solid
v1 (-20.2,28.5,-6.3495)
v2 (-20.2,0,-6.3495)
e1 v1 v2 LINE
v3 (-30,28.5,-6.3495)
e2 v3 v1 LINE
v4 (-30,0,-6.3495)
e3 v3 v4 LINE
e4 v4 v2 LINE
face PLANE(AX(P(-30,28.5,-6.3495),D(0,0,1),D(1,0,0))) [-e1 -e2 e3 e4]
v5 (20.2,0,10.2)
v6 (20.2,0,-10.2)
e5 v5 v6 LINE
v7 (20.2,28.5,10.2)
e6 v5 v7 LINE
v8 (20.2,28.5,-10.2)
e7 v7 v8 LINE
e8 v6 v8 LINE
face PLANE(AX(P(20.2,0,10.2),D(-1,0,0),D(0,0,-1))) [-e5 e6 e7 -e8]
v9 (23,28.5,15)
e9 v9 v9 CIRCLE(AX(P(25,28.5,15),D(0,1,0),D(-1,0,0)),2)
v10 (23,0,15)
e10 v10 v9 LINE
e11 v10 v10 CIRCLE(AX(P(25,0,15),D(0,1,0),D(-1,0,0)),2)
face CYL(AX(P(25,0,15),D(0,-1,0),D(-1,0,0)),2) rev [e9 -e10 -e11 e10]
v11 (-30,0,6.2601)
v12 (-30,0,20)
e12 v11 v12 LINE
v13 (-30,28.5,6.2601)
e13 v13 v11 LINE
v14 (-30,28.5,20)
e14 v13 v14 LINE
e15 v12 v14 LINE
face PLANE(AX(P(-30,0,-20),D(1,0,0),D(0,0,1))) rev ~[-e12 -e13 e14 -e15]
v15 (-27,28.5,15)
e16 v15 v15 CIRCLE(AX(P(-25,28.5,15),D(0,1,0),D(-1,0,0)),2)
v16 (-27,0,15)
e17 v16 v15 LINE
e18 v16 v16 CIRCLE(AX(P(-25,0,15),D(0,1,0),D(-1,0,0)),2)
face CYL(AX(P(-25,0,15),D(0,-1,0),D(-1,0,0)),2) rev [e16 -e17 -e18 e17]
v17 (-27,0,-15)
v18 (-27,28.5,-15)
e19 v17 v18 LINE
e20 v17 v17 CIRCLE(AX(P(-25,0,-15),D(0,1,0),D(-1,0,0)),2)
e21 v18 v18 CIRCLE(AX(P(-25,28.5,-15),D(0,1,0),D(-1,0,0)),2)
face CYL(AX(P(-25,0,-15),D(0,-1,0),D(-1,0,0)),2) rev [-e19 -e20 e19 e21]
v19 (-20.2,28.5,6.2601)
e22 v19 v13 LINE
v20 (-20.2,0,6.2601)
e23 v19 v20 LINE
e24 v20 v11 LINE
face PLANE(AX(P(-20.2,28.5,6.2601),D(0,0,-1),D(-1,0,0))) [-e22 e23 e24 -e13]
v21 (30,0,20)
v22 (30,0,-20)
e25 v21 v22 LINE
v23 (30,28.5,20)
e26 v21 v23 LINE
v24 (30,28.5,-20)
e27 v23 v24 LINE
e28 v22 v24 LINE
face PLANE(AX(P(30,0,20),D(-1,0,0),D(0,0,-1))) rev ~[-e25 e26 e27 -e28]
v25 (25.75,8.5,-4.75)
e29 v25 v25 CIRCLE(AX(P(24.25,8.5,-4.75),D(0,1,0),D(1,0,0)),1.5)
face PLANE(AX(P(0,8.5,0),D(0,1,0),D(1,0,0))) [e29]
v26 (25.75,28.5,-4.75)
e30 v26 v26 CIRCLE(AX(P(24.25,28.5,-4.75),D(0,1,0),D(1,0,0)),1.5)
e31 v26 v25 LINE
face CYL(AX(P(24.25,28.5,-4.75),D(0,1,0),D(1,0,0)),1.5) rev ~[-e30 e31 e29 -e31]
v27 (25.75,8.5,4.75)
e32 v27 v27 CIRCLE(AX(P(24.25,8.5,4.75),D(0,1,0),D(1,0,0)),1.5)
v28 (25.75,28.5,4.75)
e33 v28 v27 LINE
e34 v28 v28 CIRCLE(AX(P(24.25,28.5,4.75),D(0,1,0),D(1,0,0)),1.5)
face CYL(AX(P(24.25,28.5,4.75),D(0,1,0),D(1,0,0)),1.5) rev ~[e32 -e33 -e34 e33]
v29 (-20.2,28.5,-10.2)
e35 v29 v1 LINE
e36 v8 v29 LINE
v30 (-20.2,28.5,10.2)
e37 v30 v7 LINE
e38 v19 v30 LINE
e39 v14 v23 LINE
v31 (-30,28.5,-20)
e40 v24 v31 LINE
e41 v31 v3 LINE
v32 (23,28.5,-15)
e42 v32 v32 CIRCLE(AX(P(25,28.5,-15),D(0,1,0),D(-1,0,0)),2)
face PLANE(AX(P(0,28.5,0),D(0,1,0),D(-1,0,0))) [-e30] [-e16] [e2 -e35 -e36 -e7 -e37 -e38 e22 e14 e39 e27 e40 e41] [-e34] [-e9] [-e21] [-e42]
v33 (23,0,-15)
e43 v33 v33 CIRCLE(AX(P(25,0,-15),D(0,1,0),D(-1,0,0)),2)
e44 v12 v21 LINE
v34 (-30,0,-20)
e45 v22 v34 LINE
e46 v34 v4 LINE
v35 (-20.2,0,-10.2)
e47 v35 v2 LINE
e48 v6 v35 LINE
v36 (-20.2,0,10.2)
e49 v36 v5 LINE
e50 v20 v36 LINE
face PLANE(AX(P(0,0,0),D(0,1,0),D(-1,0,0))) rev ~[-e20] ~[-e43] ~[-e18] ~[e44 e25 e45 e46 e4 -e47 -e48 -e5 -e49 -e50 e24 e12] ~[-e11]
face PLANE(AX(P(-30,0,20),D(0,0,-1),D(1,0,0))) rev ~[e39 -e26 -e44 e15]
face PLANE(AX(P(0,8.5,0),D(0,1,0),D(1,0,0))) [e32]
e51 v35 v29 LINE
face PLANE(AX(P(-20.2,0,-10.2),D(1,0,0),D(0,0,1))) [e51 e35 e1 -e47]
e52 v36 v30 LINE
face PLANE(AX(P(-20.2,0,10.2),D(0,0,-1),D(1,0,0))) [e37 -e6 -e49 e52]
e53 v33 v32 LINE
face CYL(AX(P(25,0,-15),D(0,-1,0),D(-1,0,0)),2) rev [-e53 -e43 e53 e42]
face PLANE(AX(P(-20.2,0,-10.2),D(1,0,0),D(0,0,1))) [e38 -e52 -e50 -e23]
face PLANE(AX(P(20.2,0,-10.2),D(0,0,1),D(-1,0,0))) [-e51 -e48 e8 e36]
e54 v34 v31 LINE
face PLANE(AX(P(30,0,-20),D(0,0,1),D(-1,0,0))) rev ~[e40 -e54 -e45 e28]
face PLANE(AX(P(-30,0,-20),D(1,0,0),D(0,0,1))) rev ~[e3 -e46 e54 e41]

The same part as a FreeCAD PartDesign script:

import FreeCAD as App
import Part
import Sketcher
from FreeCAD import Vector

doc = App.newDocument("Part")
body = doc.addObject("PartDesign::Body", "Body")

# Sketch on XZ plane
sketch1 = body.newObject("Sketcher::SketchObject", "Sketch")
sketch1.AttachmentSupport = (doc.getObject("XZ_Plane"), [""])
sketch1.MapMode = "FlatFace"
sketch1.addGeometry(Part.LineSegment(Vector(30, 20, 0), Vector(30, -20, 0)), False)
sketch1.addGeometry(Part.LineSegment(Vector(30, -20, 0), Vector(-30, -20, 0)), False)
sketch1.addGeometry(Part.LineSegment(Vector(-30, -20, 0), Vector(-30, 20, 0)), False)
sketch1.addGeometry(Part.LineSegment(Vector(-30, 20, 0), Vector(30, 20, 0)), False)
sketch1.addGeometry(Part.Circle(Vector(25, -15, 0), Vector(0, 0, 1), 2), False)
sketch1.addGeometry(Part.Circle(Vector(-25, -15, 0), Vector(0, 0, 1), 2), False)
sketch1.addGeometry(Part.Circle(Vector(25, 15, 0), Vector(0, 0, 1), 2), False)
sketch1.addGeometry(Part.LineSegment(Vector(-20.2, -10.2, 0), Vector(20.2, -10.2, 0)), False)
sketch1.addGeometry(Part.LineSegment(Vector(20.2, -10.2, 0), Vector(20.2, 10.2, 0)), False)
sketch1.addGeometry(Part.LineSegment(Vector(20.2, 10.2, 0), Vector(-20.2, 10.2, 0)), False)
sketch1.addGeometry(Part.LineSegment(Vector(-20.2, 10.2, 0), Vector(-20.2, -10.2, 0)), False)
sketch1.addGeometry(Part.Circle(Vector(-25, 15, 0), Vector(0, 0, 1), 2), False)
sketch1.addConstraint(Sketcher.Constraint("Coincident", 0, 2, 1, 1))
sketch1.addConstraint(Sketcher.Constraint("Coincident", 1, 2, 2, 1))
sketch1.addConstraint(Sketcher.Constraint("Coincident", 2, 2, 3, 1))
sketch1.addConstraint(Sketcher.Constraint("Coincident", 3, 2, 0, 1))
sketch1.addConstraint(Sketcher.Constraint("Coincident", 7, 2, 8, 1))
sketch1.addConstraint(Sketcher.Constraint("Coincident", 8, 2, 9, 1))
sketch1.addConstraint(Sketcher.Constraint("Coincident", 9, 2, 10, 1))
sketch1.addConstraint(Sketcher.Constraint("Coincident", 10, 2, 7, 1))
sketch1.addConstraint(Sketcher.Constraint("Vertical", 0))
sketch1.addConstraint(Sketcher.Constraint("Horizontal", 1))
sketch1.addConstraint(Sketcher.Constraint("Vertical", 2))
sketch1.addConstraint(Sketcher.Constraint("Horizontal", 3))
sketch1.addConstraint(Sketcher.Constraint("Horizontal", 7))
sketch1.addConstraint(Sketcher.Constraint("Vertical", 8))
sketch1.addConstraint(Sketcher.Constraint("Horizontal", 9))
sketch1.addConstraint(Sketcher.Constraint("Vertical", 10))
sketch1.addConstraint(Sketcher.Constraint("Equal", 4, 5))
sketch1.addConstraint(Sketcher.Constraint("Equal", 5, 6))
sketch1.addConstraint(Sketcher.Constraint("Equal", 6, 11))
sketch1.addConstraint(Sketcher.Constraint("Symmetric", 5, 3, 6, 3, -1, 1))
sketch1.addConstraint(Sketcher.Constraint("Symmetric", 4, 3, 11, 3, -1, 1))
sketch1.addConstraint(Sketcher.Constraint("Symmetric", 0, 2, 2, 2, -1, 1))
sketch1.addConstraint(Sketcher.Constraint("Symmetric", 7, 2, 9, 2, -1, 1))
sketch1.addConstraint(Sketcher.Constraint("Symmetric", 4, 3, 5, 3, -2))
sketch1.addConstraint(Sketcher.Constraint("Diameter", 4, 4.0))
sketch1.addConstraint(Sketcher.Constraint("DistanceX", 1, 2, 1, 1, 60.0))
sketch1.addConstraint(Sketcher.Constraint("DistanceY", 0, 2, 0, 1, 40.0))
sketch1.addConstraint(Sketcher.Constraint("DistanceX", 7, 1, 7, 2, 40.4))
sketch1.addConstraint(Sketcher.Constraint("DistanceY", 8, 1, 8, 2, 20.4))
sketch1.addConstraint(Sketcher.Constraint("DistanceX", 4, 3, 0, 2, 5.0))
sketch1.addConstraint(Sketcher.Constraint("DistanceY", 0, 2, 4, 3, 5.0))
pad1 = body.newObject("PartDesign::Pad", "Pad")
pad1.Profile = sketch1
pad1.Length = 28.5
pad1.Reversed = True

# Sketch on XZ plane
sketch2 = body.newObject("Sketcher::SketchObject", "Sketch001")
sketch2.AttachmentSupport = (doc.getObject("XZ_Plane"), [""])
sketch2.MapMode = "FlatFace"
sketch2.AttachmentOffset = App.Placement(Vector(0, 0, -28.5), App.Rotation())
sketch2.addGeometry(Part.Circle(Vector(-24.2, 4.8, 0), Vector(0, 0, 1), 1.5), False)
sketch2.addGeometry(Part.Circle(Vector(-24.2, -4.8, 0), Vector(0, 0, 1), 1.5), False)
sketch2.addGeometry(Part.Circle(Vector(24.2, 4.8, 0), Vector(0, 0, 1), 1.5), False)
sketch2.addGeometry(Part.Circle(Vector(24.2, -4.8, 0), Vector(0, 0, 1), 1.5), False)
sketch2.addConstraint(Sketcher.Constraint("Equal", 0, 1))
sketch2.addConstraint(Sketcher.Constraint("Equal", 1, 2))
sketch2.addConstraint(Sketcher.Constraint("Equal", 2, 3))
sketch2.addConstraint(Sketcher.Constraint("Symmetric", 1, 3, 2, 3, -1, 1))
sketch2.addConstraint(Sketcher.Constraint("Symmetric", 0, 3, 3, 3, -1, 1))
sketch2.addConstraint(Sketcher.Constraint("Symmetric", 0, 3, 2, 3, -2))
sketch2.addConstraint(Sketcher.Constraint("Diameter", 0, 3.0))
sketch2.addConstraint(Sketcher.Constraint("DistanceY", 1, 3, 0, 3, 9.5))
sketch2.addConstraint(Sketcher.Constraint("DistanceX", 0, 3, 2, 3, 48.5))
pocket1 = body.newObject("PartDesign::Pocket", "Pocket")
pocket1.Profile = sketch2
pocket1.Length = 20
pocket1.Reversed = True

# Sketch on XZ plane
sketch3 = body.newObject("Sketcher::SketchObject", "Sketch002")
sketch3.AttachmentSupport = (doc.getObject("XZ_Plane"), [""])
sketch3.MapMode = "FlatFace"
sketch3.AttachmentOffset = App.Placement(Vector(0, 0, -28.5), App.Rotation())
sketch3.addGeometry(Part.LineSegment(Vector(-20, -6, 0), Vector(-30, -6, 0)), False)
sketch3.addGeometry(Part.LineSegment(Vector(-30, -6, 0), Vector(-30, 6, 0)), False)
sketch3.addGeometry(Part.LineSegment(Vector(-30, 6, 0), Vector(-20, 6, 0)), False)
sketch3.addGeometry(Part.LineSegment(Vector(-20, 6, 0), Vector(-20, -6, 0)), False)
sketch3.addConstraint(Sketcher.Constraint("Coincident", 0, 2, 1, 1))
sketch3.addConstraint(Sketcher.Constraint("Coincident", 1, 2, 2, 1))
sketch3.addConstraint(Sketcher.Constraint("Coincident", 2, 2, 3, 1))
sketch3.addConstraint(Sketcher.Constraint("Coincident", 3, 2, 0, 1))
sketch3.addConstraint(Sketcher.Constraint("Horizontal", 0))
sketch3.addConstraint(Sketcher.Constraint("Vertical", 1))
sketch3.addConstraint(Sketcher.Constraint("Horizontal", 2))
sketch3.addConstraint(Sketcher.Constraint("Vertical", 3))
sketch3.addConstraint(Sketcher.Constraint("DistanceX", 0, 2, 0, 1, 9.8))
sketch3.addConstraint(Sketcher.Constraint("DistanceX", 0, 2, -1, 1, 30.0))
sketch3.addConstraint(Sketcher.Constraint("DistanceY", -1, 1, 1, 2, 6.26))
sketch3.addConstraint(Sketcher.Constraint("DistanceY", 1, 1, 1, 2, 12.6096))
pocket2 = body.newObject("PartDesign::Pocket", "Pocket001")
pocket2.Profile = sketch3
pocket2.Type = "ThroughAll"
pocket2.Reversed = True

doc.recompute()
